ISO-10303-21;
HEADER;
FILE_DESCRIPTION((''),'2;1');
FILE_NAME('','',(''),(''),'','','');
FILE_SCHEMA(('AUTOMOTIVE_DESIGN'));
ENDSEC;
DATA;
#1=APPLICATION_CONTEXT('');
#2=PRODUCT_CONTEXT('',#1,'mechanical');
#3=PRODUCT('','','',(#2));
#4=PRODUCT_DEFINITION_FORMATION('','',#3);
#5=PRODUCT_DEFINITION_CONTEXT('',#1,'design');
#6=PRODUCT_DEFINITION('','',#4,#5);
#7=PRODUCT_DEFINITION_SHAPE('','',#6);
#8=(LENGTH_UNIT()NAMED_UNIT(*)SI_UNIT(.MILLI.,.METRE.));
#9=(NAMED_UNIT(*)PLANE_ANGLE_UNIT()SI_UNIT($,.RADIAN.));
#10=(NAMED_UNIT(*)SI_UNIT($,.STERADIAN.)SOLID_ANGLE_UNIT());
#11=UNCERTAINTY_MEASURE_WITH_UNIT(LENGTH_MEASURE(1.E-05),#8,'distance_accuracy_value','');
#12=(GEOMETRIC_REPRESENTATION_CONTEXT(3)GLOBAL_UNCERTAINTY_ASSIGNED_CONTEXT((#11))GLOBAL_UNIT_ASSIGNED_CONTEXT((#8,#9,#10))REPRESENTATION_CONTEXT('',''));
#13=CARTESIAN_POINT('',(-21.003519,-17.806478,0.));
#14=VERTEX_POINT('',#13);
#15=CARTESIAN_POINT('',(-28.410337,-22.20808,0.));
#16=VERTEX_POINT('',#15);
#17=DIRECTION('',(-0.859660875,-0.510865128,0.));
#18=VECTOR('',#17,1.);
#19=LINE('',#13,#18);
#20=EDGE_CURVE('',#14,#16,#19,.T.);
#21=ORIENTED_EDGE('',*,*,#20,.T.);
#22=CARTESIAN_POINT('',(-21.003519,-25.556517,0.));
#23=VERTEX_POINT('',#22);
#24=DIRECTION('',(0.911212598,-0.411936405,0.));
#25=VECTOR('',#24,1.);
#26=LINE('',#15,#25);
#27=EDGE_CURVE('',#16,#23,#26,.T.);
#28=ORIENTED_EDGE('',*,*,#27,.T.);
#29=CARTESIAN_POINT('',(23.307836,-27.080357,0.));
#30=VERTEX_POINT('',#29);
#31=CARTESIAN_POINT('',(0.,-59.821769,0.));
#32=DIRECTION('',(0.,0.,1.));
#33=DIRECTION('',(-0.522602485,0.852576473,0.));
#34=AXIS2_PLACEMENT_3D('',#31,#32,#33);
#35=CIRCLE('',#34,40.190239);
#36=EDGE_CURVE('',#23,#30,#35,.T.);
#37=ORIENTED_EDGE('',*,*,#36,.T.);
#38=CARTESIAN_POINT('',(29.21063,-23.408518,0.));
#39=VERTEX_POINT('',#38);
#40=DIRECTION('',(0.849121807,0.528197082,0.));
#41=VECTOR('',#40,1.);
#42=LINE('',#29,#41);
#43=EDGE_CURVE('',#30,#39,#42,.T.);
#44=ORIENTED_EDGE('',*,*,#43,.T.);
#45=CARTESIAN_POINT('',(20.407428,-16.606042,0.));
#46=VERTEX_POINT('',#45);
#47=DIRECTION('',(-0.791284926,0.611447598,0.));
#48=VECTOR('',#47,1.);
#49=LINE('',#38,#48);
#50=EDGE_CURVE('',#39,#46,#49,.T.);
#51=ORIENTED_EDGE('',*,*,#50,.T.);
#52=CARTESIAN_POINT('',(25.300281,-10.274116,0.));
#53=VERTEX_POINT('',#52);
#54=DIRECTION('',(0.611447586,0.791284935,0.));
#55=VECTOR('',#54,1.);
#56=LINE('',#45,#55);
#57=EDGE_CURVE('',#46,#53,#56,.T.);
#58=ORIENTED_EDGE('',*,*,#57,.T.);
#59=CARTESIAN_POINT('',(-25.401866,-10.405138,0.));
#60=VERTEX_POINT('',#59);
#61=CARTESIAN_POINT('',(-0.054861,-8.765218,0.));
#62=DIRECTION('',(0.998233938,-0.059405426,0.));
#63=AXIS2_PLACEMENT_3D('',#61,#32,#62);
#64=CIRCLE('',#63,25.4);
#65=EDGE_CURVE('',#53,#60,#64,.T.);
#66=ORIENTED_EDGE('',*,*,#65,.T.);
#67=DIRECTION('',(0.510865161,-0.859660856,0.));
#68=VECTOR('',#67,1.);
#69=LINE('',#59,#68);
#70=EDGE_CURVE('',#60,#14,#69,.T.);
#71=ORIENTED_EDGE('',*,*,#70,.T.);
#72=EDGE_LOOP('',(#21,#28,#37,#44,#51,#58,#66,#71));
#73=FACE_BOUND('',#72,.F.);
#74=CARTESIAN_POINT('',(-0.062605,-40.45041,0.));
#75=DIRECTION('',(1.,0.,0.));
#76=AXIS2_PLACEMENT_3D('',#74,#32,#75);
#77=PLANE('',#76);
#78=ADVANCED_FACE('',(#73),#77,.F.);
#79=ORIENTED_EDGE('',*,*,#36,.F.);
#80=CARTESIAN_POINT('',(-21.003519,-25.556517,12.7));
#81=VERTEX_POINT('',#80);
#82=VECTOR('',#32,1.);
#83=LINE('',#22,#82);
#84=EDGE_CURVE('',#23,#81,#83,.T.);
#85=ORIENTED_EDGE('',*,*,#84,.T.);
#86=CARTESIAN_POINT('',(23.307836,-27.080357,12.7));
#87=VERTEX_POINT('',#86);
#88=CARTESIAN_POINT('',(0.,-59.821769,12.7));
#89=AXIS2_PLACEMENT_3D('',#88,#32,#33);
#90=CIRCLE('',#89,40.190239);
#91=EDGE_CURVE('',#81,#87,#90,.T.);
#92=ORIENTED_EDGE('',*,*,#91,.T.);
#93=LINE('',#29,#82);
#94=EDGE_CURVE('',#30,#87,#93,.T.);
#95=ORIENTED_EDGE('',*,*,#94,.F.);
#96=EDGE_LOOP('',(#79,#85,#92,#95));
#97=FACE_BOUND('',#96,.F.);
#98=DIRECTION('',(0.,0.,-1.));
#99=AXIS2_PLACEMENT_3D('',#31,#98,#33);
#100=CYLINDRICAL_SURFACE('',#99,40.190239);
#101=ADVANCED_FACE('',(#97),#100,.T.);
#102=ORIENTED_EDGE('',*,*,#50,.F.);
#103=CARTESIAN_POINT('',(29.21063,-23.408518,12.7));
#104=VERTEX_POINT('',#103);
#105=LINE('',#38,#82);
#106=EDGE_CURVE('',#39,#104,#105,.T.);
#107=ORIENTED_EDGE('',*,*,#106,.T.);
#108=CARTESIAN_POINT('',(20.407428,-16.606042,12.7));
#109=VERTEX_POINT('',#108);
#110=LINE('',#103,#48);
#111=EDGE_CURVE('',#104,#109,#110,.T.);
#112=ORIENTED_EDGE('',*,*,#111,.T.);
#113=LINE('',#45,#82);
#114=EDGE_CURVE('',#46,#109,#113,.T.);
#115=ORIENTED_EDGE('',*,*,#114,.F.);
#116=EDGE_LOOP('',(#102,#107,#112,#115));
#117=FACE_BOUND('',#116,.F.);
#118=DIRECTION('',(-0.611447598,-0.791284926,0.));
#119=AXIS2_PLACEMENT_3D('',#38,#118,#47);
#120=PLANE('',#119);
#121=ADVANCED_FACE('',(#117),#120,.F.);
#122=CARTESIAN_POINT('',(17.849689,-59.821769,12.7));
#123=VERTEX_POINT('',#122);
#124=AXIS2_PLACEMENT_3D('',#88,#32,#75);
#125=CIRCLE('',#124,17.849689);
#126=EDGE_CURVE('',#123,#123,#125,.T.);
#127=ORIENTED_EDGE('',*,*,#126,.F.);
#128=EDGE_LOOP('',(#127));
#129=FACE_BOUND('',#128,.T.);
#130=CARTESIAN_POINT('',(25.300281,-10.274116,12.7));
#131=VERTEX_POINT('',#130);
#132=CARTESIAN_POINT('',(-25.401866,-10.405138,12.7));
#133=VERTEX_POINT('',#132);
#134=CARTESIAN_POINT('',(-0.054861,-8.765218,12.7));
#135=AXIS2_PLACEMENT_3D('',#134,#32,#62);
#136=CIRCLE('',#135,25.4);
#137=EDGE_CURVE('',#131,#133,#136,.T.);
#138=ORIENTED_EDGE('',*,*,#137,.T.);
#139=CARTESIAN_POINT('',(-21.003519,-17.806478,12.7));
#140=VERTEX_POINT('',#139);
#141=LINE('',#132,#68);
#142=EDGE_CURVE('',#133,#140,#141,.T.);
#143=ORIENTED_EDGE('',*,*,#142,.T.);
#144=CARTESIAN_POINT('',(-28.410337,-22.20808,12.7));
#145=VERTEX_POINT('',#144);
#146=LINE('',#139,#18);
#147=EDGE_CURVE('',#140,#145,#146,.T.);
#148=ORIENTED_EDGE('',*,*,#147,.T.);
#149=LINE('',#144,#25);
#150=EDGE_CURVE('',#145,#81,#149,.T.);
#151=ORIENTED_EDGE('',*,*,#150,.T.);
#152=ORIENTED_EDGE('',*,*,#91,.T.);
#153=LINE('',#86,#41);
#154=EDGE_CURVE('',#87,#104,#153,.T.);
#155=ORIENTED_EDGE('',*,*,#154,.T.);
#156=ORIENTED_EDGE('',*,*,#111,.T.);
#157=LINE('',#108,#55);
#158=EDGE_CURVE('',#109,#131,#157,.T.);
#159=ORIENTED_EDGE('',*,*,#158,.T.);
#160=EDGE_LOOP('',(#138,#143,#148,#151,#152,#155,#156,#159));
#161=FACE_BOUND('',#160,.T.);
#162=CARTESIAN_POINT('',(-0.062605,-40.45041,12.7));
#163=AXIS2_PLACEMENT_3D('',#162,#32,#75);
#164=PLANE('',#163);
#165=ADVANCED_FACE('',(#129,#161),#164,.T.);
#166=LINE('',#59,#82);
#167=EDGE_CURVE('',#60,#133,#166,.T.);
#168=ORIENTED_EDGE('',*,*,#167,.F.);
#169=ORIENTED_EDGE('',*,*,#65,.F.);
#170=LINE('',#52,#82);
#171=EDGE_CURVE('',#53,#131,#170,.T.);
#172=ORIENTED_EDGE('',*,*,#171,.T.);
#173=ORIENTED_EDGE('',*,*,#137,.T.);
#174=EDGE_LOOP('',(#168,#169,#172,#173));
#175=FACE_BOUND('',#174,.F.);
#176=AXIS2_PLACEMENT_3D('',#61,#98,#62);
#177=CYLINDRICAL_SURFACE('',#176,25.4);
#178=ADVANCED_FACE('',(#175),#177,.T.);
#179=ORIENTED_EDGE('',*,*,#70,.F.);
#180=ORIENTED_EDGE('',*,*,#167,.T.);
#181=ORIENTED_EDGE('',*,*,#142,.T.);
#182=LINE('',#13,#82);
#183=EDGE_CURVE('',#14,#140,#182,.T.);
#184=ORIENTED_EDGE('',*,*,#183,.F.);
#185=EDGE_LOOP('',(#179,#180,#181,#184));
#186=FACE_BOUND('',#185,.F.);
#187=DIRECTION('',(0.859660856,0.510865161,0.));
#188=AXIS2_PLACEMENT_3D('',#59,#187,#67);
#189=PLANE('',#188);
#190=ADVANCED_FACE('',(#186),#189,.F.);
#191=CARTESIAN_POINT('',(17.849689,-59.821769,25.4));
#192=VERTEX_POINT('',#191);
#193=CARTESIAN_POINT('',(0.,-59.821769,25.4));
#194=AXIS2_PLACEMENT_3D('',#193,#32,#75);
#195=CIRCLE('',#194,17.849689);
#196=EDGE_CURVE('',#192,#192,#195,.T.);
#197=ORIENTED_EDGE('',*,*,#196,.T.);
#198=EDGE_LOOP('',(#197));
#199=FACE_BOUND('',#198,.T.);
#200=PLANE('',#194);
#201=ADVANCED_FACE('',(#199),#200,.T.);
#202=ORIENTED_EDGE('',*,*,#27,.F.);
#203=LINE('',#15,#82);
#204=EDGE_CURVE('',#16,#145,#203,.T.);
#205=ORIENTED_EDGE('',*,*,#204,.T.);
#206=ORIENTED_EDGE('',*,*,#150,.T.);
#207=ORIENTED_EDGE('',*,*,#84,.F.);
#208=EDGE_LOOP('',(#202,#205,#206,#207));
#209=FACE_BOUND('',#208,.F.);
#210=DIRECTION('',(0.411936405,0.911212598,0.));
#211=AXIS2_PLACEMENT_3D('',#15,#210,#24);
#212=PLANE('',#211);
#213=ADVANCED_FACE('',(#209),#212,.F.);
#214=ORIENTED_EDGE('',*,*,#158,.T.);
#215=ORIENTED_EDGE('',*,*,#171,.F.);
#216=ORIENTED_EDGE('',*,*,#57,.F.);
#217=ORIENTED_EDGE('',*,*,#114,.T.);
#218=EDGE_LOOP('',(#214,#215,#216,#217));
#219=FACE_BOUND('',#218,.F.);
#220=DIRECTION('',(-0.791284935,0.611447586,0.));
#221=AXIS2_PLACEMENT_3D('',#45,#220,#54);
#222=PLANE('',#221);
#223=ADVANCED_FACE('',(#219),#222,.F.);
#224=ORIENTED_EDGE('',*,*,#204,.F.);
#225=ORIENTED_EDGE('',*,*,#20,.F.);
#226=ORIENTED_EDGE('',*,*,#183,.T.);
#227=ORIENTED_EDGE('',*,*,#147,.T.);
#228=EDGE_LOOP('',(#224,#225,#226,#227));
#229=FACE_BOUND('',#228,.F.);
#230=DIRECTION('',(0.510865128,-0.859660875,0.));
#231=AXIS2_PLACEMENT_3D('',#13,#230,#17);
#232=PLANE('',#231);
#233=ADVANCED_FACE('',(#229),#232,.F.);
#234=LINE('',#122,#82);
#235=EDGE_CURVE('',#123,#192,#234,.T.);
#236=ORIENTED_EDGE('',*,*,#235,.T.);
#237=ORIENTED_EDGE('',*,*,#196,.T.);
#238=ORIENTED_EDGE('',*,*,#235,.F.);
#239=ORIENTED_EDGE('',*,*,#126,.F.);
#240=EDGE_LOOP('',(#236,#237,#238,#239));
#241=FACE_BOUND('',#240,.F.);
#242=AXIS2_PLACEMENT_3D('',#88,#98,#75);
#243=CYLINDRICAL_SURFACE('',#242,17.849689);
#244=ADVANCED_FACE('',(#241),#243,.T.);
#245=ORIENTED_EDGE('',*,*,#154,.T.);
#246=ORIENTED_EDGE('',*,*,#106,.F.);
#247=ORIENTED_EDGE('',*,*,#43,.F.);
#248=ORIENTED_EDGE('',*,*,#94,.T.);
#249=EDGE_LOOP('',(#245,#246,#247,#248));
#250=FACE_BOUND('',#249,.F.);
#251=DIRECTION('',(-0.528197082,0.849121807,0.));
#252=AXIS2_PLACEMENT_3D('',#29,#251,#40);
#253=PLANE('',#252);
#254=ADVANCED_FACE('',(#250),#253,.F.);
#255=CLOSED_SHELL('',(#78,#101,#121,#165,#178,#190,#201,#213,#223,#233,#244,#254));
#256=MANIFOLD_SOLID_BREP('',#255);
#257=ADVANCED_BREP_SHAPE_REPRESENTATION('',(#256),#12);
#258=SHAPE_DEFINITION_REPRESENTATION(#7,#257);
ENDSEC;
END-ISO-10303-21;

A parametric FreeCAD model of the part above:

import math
import FreeCAD as App
import Part
import Sketcher
Q = App.Units.Quantity

doc = App.newDocument("Part")
body = doc.addObject("PartDesign::Body", "Body")

sketch1 = body.newObject("Sketcher::SketchObject", "Sketch")
sketch1.AttachmentSupport = (doc.getObject("XY_Plane"), [""])
sketch1.MapMode = "FlatFace"
sketch1.addGeometry([
    Part.LineSegment(App.Vector(-28.410337, -22.20808, 0), App.Vector(-21.003519, -25.556517, 0)),
    Part.ArcOfCircle(Part.Circle(App.Vector(0, -59.821769, 0), App.Vector(0, 0, 1), 40.190239), math.radians(121.506983), math.radians(414.553836)),
    Part.LineSegment(App.Vector(23.307836, -27.080357, 0), App.Vector(29.21063, -23.408518, 0)),
    Part.LineSegment(App.Vector(29.21063, -23.408518, 0), App.Vector(20.407428, -16.606042, 0)),
    Part.LineSegment(App.Vector(20.407428, -16.606042, 0), App.Vector(25.300281, -10.274116, 0)),
    Part.ArcOfCircle(Part.Circle(App.Vector(-0.054861, -8.765218, 0), App.Vector(0, 0, 1), 25.4), math.radians(-3.405685), math.radians(183.701807)),
    Part.LineSegment(App.Vector(-25.401866, -10.405138, 0), App.Vector(-21.003519, -17.806478, 0)),
    Part.LineSegment(App.Vector(-21.003519, -17.806478, 0), App.Vector(-28.410337, -22.20808, 0)),
], False)
sketch1.addConstraint([
    Sketcher.Constraint("Coincident", 0, 2, 1, 1),
    Sketcher.Constraint("Coincident", 1, 2, 2, 1),
    Sketcher.Constraint("Coincident", 2, 2, 3, 1),
    Sketcher.Constraint("Coincident", 3, 2, 4, 1),
    Sketcher.Constraint("Coincident", 4, 2, 5, 1),
    Sketcher.Constraint("Coincident", 5, 2, 6, 1),
    Sketcher.Constraint("Coincident", 6, 2, 7, 1),
    Sketcher.Constraint("Coincident", 7, 2, 0, 1),
    Sketcher.Constraint("PointOnObject", 1, 3, -2),
    Sketcher.Constraint("Perpendicular", 3, 4),
    Sketcher.Constraint("Perpendicular", 6, 7),
    Sketcher.Constraint("Vertical", 0, 2, 6, 2),
    Sketcher.Constraint("Radius", 5, Q("1 in")),
    Sketcher.Constraint("Distance", 3, Q("0.4379999 in")),
    Sketcher.Constraint("Radius", 1, Q("40.190239 mm")),
    Sketcher.Constraint("DistanceY", 0, 2, 5, 3, Q("16.791299 mm")),
    Sketcher.Constraint("DistanceY", 2, 2, 5, 3, Q("14.6433 mm")),
    Sketcher.Constraint("DistanceX", 3, 2, 2, 2, Q("8.803202 mm")),
    Sketcher.Constraint("DistanceX", 0, 2, 4, 2, Q("46.3038 mm")),
    Sketcher.Constraint("DistanceY", 0, 2, 4, 2, Q("15.282401 mm")),
    Sketcher.Constraint("DistanceX", 5, 2, 1, 2, Q("48.709702 mm")),
    Sketcher.Constraint("Distance", 0, Q("8.128529 mm")),
    Sketcher.Constraint("DistanceY", 1, 3, -1, 1, Q("59.821769 mm")),
    Sketcher.Constraint("DistanceX", 5, 3, -1, 1, Q("0.054861 mm")),
    Sketcher.Constraint("DistanceY", 7, 2, -1, 1, Q("22.20808 mm")),
    Sketcher.Constraint("DistanceY", 0, 2, 5, 2, Q("15.151379 mm")),
])
pad1 = body.newObject("PartDesign::Pad", "Pad")
pad1.Profile = sketch1
pad1.Length = Q("0.5 in")

sketch2 = body.newObject("Sketcher::SketchObject", "Sketch001")
sketch2.AttachmentSupport = (doc.getObject("XY_Plane"), [""])
sketch2.MapMode = "FlatFace"
sketch2.AttachmentOffset = App.Placement(App.Vector(0, 0, 0.5 * 25.4), App.Rotation())
sketch2.addGeometry(Part.Circle(App.Vector(0, -59.821769, 0), App.Vector(0, 0, 1), 17.849689), False)
sketch2.addConstraint([
    Sketcher.Constraint("PointOnObject", 0, 3, -2),
    Sketcher.Constraint("Diameter", 0, Q("35.699378 mm")),
    Sketcher.Constraint("DistanceY", 0, 3, -1, 1, Q("59.821769 mm")),
])
pad2 = body.newObject("PartDesign::Pad", "Pad001")
pad2.Profile = sketch2
pad2.Length = Q("0.5 in")

doc.recompute()
